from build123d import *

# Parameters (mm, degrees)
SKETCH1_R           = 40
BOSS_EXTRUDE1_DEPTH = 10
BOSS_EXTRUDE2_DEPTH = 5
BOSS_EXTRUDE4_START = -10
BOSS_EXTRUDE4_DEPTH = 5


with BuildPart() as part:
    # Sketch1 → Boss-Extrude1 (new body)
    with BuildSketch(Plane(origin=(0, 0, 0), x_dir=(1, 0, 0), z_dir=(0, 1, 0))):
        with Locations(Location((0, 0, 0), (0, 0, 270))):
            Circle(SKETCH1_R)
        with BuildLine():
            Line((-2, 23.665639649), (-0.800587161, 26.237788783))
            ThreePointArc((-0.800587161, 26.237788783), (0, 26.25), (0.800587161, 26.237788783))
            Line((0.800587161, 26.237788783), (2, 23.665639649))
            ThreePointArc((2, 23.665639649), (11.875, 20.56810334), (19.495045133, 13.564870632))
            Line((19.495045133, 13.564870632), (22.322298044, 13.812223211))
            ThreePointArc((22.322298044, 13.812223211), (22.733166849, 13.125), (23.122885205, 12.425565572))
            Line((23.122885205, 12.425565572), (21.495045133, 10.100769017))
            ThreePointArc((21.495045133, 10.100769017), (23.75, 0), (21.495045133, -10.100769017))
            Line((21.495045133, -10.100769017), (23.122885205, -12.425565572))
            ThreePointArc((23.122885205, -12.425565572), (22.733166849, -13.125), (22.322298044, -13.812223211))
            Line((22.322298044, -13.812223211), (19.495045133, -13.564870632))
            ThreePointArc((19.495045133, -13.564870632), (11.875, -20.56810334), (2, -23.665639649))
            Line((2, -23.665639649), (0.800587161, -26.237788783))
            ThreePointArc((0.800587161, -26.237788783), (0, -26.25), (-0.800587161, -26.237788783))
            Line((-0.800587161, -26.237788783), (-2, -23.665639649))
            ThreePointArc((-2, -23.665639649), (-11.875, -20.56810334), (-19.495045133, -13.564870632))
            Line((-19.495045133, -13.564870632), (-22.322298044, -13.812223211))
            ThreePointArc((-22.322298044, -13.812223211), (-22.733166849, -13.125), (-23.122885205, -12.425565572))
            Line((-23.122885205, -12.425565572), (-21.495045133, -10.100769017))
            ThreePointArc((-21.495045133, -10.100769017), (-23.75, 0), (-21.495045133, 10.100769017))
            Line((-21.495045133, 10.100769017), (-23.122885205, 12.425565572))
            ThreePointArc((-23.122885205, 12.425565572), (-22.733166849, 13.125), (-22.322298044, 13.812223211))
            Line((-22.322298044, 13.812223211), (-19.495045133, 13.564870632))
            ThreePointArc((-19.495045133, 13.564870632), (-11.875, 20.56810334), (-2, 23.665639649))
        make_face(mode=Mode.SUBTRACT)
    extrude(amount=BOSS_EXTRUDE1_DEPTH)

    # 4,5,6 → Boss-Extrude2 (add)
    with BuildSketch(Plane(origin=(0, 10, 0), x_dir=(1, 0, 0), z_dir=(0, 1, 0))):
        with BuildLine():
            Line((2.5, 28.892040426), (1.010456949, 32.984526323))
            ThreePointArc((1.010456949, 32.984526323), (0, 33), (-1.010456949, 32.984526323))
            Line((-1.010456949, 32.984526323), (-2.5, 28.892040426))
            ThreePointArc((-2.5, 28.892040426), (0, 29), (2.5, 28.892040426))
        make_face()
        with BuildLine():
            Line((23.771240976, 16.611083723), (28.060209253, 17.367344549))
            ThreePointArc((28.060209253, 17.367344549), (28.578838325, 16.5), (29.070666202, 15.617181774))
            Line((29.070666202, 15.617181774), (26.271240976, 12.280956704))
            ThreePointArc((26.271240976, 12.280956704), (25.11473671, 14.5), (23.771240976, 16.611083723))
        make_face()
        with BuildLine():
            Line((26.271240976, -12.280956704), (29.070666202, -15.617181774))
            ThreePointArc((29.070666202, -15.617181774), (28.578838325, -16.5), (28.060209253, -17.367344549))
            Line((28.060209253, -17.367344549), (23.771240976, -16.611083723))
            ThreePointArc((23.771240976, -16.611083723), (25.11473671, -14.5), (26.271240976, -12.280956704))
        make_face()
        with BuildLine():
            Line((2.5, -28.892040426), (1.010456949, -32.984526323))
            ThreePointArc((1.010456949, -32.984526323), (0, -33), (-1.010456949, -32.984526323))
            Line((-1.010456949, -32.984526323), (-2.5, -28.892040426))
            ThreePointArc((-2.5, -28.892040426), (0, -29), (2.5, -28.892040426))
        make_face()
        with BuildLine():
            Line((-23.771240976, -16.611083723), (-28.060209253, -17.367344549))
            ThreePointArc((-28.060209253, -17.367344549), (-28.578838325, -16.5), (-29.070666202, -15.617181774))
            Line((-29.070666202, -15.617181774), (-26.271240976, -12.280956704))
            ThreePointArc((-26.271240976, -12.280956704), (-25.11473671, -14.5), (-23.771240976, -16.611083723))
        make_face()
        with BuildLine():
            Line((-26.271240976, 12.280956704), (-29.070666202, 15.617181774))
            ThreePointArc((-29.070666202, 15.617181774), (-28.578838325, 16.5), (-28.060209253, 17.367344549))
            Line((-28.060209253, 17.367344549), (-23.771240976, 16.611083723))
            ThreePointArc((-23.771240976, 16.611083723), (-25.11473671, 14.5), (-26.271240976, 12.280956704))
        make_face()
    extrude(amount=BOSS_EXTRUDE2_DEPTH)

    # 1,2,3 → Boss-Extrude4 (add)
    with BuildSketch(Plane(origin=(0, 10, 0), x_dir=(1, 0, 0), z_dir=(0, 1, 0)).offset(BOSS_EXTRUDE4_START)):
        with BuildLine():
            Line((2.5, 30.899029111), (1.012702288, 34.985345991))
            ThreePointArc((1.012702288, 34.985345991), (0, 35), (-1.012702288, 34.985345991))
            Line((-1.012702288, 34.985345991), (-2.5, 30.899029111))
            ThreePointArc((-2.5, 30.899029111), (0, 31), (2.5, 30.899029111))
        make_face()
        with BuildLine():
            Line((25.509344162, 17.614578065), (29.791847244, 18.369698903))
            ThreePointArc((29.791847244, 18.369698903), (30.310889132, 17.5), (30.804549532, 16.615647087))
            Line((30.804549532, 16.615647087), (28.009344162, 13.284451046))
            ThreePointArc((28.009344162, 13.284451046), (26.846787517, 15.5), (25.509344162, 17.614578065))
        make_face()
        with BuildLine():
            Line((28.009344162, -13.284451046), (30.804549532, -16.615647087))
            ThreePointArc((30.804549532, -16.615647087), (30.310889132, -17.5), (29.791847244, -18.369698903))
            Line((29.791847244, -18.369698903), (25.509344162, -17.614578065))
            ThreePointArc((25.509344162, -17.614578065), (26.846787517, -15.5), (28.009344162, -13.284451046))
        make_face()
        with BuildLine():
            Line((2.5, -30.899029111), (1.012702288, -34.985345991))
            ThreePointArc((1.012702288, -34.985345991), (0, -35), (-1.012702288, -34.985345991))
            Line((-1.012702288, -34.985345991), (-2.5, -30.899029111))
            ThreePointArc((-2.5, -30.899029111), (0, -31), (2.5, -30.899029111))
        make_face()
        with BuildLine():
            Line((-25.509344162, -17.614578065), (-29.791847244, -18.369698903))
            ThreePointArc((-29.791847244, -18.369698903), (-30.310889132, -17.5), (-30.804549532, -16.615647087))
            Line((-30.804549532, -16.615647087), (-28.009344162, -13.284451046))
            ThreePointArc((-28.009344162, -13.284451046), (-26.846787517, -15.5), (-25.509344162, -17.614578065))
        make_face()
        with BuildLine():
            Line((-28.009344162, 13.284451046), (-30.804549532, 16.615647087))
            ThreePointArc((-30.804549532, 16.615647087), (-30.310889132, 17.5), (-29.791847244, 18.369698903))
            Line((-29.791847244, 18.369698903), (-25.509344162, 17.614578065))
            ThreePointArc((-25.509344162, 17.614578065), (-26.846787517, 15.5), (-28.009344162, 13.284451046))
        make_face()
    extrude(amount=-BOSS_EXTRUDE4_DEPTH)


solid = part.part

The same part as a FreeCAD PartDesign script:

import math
import FreeCAD as App
import Part
import Sketcher

V = App.Vector
Q = App.Units.Quantity

doc = App.newDocument("Part")
body = doc.addObject("PartDesign::Body", "Body")

# Sketch on XZ plane
sketch1 = body.newObject("Sketcher::SketchObject", "Sketch")
sketch1.AttachmentSupport = (doc.getObject("XZ_Plane"), [""])
sketch1.MapMode = "FlatFace"
sketch1.addGeometry([
    Part.Circle(V(0, 0, 0), V(0, 0, 1), 40),  # 0
    Part.ArcOfCircle(Part.Circle(V(0, 0, 0), V(0, 0, 1), 23.7), math.radians(-145), math.radians(-95)),  # 1
    Part.LineSegment(V(-2, -23.7, 0), V(-0.8, -26.2, 0)),  # 2
    Part.ArcOfCircle(Part.Circle(V(0, 0, 0), V(0, 0, 1), 26.3), math.radians(-91.75), math.radians(-88.25)),  # 3
    Part.LineSegment(V(0.8, -26.2, 0), V(2, -23.7, 0)),  # 4
    Part.ArcOfCircle(Part.Circle(V(0, 0, 0), V(0, 0, 1), 23.7), math.radians(-85), math.radians(-35)),  # 5
    Part.LineSegment(V(19.5, -13.6, 0), V(22.3, -13.8, 0)),  # 6
    Part.ArcOfCircle(Part.Circle(V(0, 0, 0), V(0, 0, 1), 26.3), math.radians(-31.75), math.radians(-28.25)),  # 7
    Part.LineSegment(V(23.1, -12.4, 0), V(21.5, -10.1, 0)),  # 8
    Part.ArcOfCircle(Part.Circle(V(0, 0, 0), V(0, 0, 1), 23.8), math.radians(-25), math.radians(25)),  # 9
    Part.LineSegment(V(21.5, 10.1, 0), V(23.1, 12.4, 0)),  # 10
    Part.ArcOfCircle(Part.Circle(V(0, 0, 0), V(0, 0, 1), 26.3), math.radians(28.25), math.radians(31.75)),  # 11
    Part.LineSegment(V(22.3, 13.8, 0), V(19.5, 13.6, 0)),  # 12
    Part.ArcOfCircle(Part.Circle(V(0, 0, 0), V(0, 0, 1), 23.7), math.radians(35), math.radians(85)),  # 13
    Part.LineSegment(V(2, 23.7, 0), V(0.8, 26.2, 0)),  # 14
    Part.ArcOfCircle(Part.Circle(V(0, 0, 0), V(0, 0, 1), 26.3), math.radians(88.25), math.radians(91.75)),  # 15
    Part.LineSegment(V(-0.8, 26.2, 0), V(-2, 23.7, 0)),  # 16
    Part.ArcOfCircle(Part.Circle(V(0, 0, 0), V(0, 0, 1), 23.7), math.radians(95), math.radians(145)),  # 17
    Part.LineSegment(V(-19.5, 13.6, 0), V(-22.3, 13.8, 0)),  # 18
    Part.ArcOfCircle(Part.Circle(V(0, 0, 0), V(0, 0, 1), 26.3), math.radians(148.25), math.radians(151.75)),  # 19
    Part.LineSegment(V(-23.1, 12.4, 0), V(-21.5, 10.1, 0)),  # 20
    Part.ArcOfCircle(Part.Circle(V(0, 0, 0), V(0, 0, 1), 23.8), math.radians(155), math.radians(205)),  # 21
    Part.LineSegment(V(-21.5, -10.1, 0), V(-23.1, -12.4, 0)),  # 22
    Part.ArcOfCircle(Part.Circle(V(0, 0, 0), V(0, 0, 1), 26.3), math.radians(-151.75), math.radians(-148.25)),  # 23
    Part.LineSegment(V(-22.3, -13.8, 0), V(-19.5, -13.6, 0)),  # 24
], False)
sketch1.addConstraint([
    Sketcher.Constraint("Coincident", 1, 2, 2, 1),
    Sketcher.Constraint("Coincident", 2, 2, 3, 1),
    Sketcher.Constraint("Coincident", 3, 2, 4, 1),
    Sketcher.Constraint("Coincident", 4, 2, 5, 1),
    Sketcher.Constraint("Coincident", 5, 2, 6, 1),
    Sketcher.Constraint("Coincident", 6, 2, 7, 1),
    Sketcher.Constraint("Coincident", 7, 2, 8, 1),
    Sketcher.Constraint("Coincident", 8, 2, 9, 1),
    Sketcher.Constraint("Coincident", 9, 2, 10, 1),
    Sketcher.Constraint("Coincident", 10, 2, 11, 1),
    Sketcher.Constraint("Coincident", 11, 2, 12, 1),
    Sketcher.Constraint("Coincident", 12, 2, 13, 1),
    Sketcher.Constraint("Coincident", 13, 2, 14, 1),
    Sketcher.Constraint("Coincident", 14, 2, 15, 1),
    Sketcher.Constraint("Coincident", 15, 2, 16, 1),
    Sketcher.Constraint("Coincident", 16, 2, 17, 1),
    Sketcher.Constraint("Coincident", 17, 2, 18, 1),
    Sketcher.Constraint("Coincident", 18, 2, 19, 1),
    Sketcher.Constraint("Coincident", 19, 2, 20, 1),
    Sketcher.Constraint("Coincident", 20, 2, 21, 1),
    Sketcher.Constraint("Coincident", 21, 2, 22, 1),
    Sketcher.Constraint("Coincident", 22, 2, 23, 1),
    Sketcher.Constraint("Coincident", 23, 2, 24, 1),
    Sketcher.Constraint("Coincident", 24, 2, 1, 1),
    Sketcher.Constraint("Coincident", 0, 3, -1, 1),
    Sketcher.Constraint("Coincident", 1, 3, -1, 1),
    Sketcher.Constraint("Coincident", 3, 3, -1, 1),
    Sketcher.Constraint("Coincident", 5, 3, -1, 1),
    Sketcher.Constraint("Coincident", 7, 3, -1, 1),
    Sketcher.Constraint("Coincident", 9, 3, -1, 1),
    Sketcher.Constraint("Coincident", 11, 3, -1, 1),
    Sketcher.Constraint("Coincident", 13, 3, -1, 1),
    Sketcher.Constraint("Coincident", 15, 3, -1, 1),
    Sketcher.Constraint("Coincident", 17, 3, -1, 1),
    Sketcher.Constraint("Coincident", 19, 3, -1, 1),
    Sketcher.Constraint("Coincident", 21, 3, -1, 1),
    Sketcher.Constraint("Coincident", 23, 3, -1, 1),
    Sketcher.Constraint("Equal", 1, 5),
    Sketcher.Constraint("Equal", 3, 7),
    Sketcher.Constraint("Equal", 5, 9),
    Sketcher.Constraint("Equal", 7, 11),
    Sketcher.Constraint("Equal", 9, 13),
    Sketcher.Constraint("Equal", 11, 15),
    Sketcher.Constraint("Equal", 13, 17),
    Sketcher.Constraint("Equal", 15, 19),
    Sketcher.Constraint("Equal", 17, 21),
    Sketcher.Constraint("Equal", 19, 23),
    Sketcher.Constraint("Parallel", 2, 14),
    Sketcher.Constraint("Parallel", 4, 16),
    Sketcher.Constraint("Parallel", 6, 18),
    Sketcher.Constraint("Parallel", 8, 20),
    Sketcher.Constraint("Parallel", 10, 22),
    Sketcher.Constraint("Parallel", 12, 24),
    Sketcher.Constraint("Horizontal", 2, 2, 3, 2),
    Sketcher.Constraint("Horizontal", 1, 2, 4, 2),
    Sketcher.Constraint("Horizontal", 14, 2, 15, 2),
    Sketcher.Constraint("Horizontal", 12, 2, 17, 2),
    Sketcher.Constraint("Horizontal", 11, 2, 18, 2),
    Sketcher.Constraint("Horizontal", 10, 2, 19, 2),
    Sketcher.Constraint("Horizontal", 9, 2, 20, 2),
    Sketcher.Constraint("Horizontal", 8, 2, 21, 2),
    Sketcher.Constraint("Horizontal", 6, 2, 23, 2),
    Sketcher.Constraint("Vertical", 8, 2, 9, 2),
    Sketcher.Constraint("Vertical", 6, 2, 11, 2),
    Sketcher.Constraint("Vertical", 4, 2, 13, 2),
    Sketcher.Constraint("Equal", 4, 6),
    Sketcher.Constraint("Equal", 6, 8),
    Sketcher.Constraint("Diameter", 0, 80.0),
    Sketcher.Constraint("Angle", 2, Q("-65 deg")),
    Sketcher.Constraint("Angle", 6, Q("-5 deg")),
    Sketcher.Constraint("Angle", 8, Q("125 deg")),
    Sketcher.Constraint("Radius", 1, 23.75),
    Sketcher.Constraint("Radius", 3, 26.250001),
    Sketcher.Constraint("DistanceX", 1, 2, -1, 1, 2.0),
])
pad1 = body.newObject("PartDesign::Pad", "Pad")
pad1.Profile = sketch1
pad1.Length = 10
pad1.Reversed = True

# Sketch on XZ plane
sketch2 = body.newObject("Sketcher::SketchObject", "Sketch001")
sketch2.AttachmentSupport = (doc.getObject("XZ_Plane"), [""])
sketch2.MapMode = "FlatFace"
sketch2.AttachmentOffset = App.Placement(V(0, 0, -10), App.Rotation())
sketch2.addGeometry([
    Part.LineSegment(V(2.5, -28.9, 0), V(1, -33, 0)),  # 0
    Part.ArcOfCircle(Part.Circle(V(0, 0, 0), V(0, 0, 1), 33), math.radians(-91.75), math.radians(-88.25)),  # 1
    Part.LineSegment(V(-1, -33, 0), V(-2.5, -28.9, 0)),  # 2
    Part.ArcOfCircle(Part.Circle(V(0, 0, 0), V(0, 0, 1), 29), math.radians(-94.95), math.radians(-85.05)),  # 3
    Part.LineSegment(V(28.1, -17.4, 0), V(23.8, -16.6, 0)),  # 4
    Part.ArcOfCircle(Part.Circle(V(0, 0, 0), V(0, 0, 1), 29), math.radians(-34.95), math.radians(-25.05)),  # 5
    Part.LineSegment(V(26.3, -12.3, 0), V(29.1, -15.6, 0)),  # 6
    Part.ArcOfCircle(Part.Circle(V(0, 0, 0), V(0, 0, 1), 33), math.radians(-31.75), math.radians(-28.25)),  # 7
    Part.LineSegment(V(29.1, 15.6, 0), V(26.3, 12.3, 0)),  # 8
    Part.ArcOfCircle(Part.Circle(V(0, 0, 0), V(0, 0, 1), 29), math.radians(25.05), math.radians(34.95)),  # 9
    Part.LineSegment(V(23.8, 16.6, 0), V(28.1, 17.4, 0)),  # 10
    Part.ArcOfCircle(Part.Circle(V(0, 0, 0), V(0, 0, 1), 33), math.radians(28.25), math.radians(31.75)),  # 11
    Part.LineSegment(V(1, 33, 0), V(2.5, 28.9, 0)),  # 12
    Part.ArcOfCircle(Part.Circle(V(0, 0, 0), V(0, 0, 1), 29), math.radians(85.05), math.radians(94.95)),  # 13
    Part.LineSegment(V(-2.5, 28.9, 0), V(-1, 33, 0)),  # 14
    Part.ArcOfCircle(Part.Circle(V(0, 0, 0), V(0, 0, 1), 33), math.radians(88.25), math.radians(91.75)),  # 15
    Part.LineSegment(V(-28.1, 17.4, 0), V(-23.8, 16.6, 0)),  # 16
    Part.ArcOfCircle(Part.Circle(V(0, 0, 0), V(0, 0, 1), 29), math.radians(145.05), math.radians(154.95)),  # 17
    Part.LineSegment(V(-26.3, 12.3, 0), V(-29.1, 15.6, 0)),  # 18
    Part.ArcOfCircle(Part.Circle(V(0, 0, 0), V(0, 0, 1), 33), math.radians(148.25), math.radians(151.75)),  # 19
    Part.LineSegment(V(-29.1, -15.6, 0), V(-26.3, -12.3, 0)),  # 20
    Part.ArcOfCircle(Part.Circle(V(0, 0, 0), V(0, 0, 1), 29), math.radians(-154.95), math.radians(-145.05)),  # 21
    Part.LineSegment(V(-23.8, -16.6, 0), V(-28.1, -17.4, 0)),  # 22
    Part.ArcOfCircle(Part.Circle(V(0, 0, 0), V(0, 0, 1), 33), math.radians(-151.75), math.radians(-148.25)),  # 23
], False)
sketch2.addConstraint([
    Sketcher.Constraint("Coincident", 0, 2, 1, 2),
    Sketcher.Constraint("Coincident", 1, 1, 2, 1),
    Sketcher.Constraint("Coincident", 2, 2, 3, 1),
    Sketcher.Constraint("Coincident", 3, 2, 0, 1),
    Sketcher.Constraint("Coincident", 4, 2, 5, 1),
    Sketcher.Constraint("Coincident", 5, 2, 6, 1),
    Sketcher.Constraint("Coincident", 6, 2, 7, 2),
    Sketcher.Constraint("Coincident", 7, 1, 4, 1),
    Sketcher.Constraint("Coincident", 8, 2, 9, 1),
    Sketcher.Constraint("Coincident", 9, 2, 10, 1),
    Sketcher.Constraint("Coincident", 10, 2, 11, 2),
    Sketcher.Constraint("Coincident", 11, 1, 8, 1),
    Sketcher.Constraint("Coincident", 12, 2, 13, 1),
    Sketcher.Constraint("Coincident", 13, 2, 14, 1),
    Sketcher.Constraint("Coincident", 14, 2, 15, 2),
    Sketcher.Constraint("Coincident", 15, 1, 12, 1),
    Sketcher.Constraint("Coincident", 16, 2, 17, 1),
    Sketcher.Constraint("Coincident", 17, 2, 18, 1),
    Sketcher.Constraint("Coincident", 18, 2, 19, 2),
    Sketcher.Constraint("Coincident", 19, 1, 16, 1),
    Sketcher.Constraint("Coincident", 20, 2, 21, 1),
    Sketcher.Constraint("Coincident", 21, 2, 22, 1),
    Sketcher.Constraint("Coincident", 22, 2, 23, 2),
    Sketcher.Constraint("Coincident", 23, 1, 20, 1),
    Sketcher.Constraint("Coincident", 1, 3, -1, 1),
    Sketcher.Constraint("Coincident", 3, 3, -1, 1),
    Sketcher.Constraint("Coincident", 5, 3, -1, 1),
    Sketcher.Constraint("Coincident", 7, 3, -1, 1),
    Sketcher.Constraint("Coincident", 9, 3, -1, 1),
    Sketcher.Constraint("Coincident", 11, 3, -1, 1),
    Sketcher.Constraint("Coincident", 13, 3, -1, 1),
    Sketcher.Constraint("Coincident", 15, 3, -1, 1),
    Sketcher.Constraint("Coincident", 17, 3, -1, 1),
    Sketcher.Constraint("Coincident", 19, 3, -1, 1),
    Sketcher.Constraint("Coincident", 21, 3, -1, 1),
    Sketcher.Constraint("Coincident", 23, 3, -1, 1),
    Sketcher.Constraint("Equal", 3, 5),
    Sketcher.Constraint("Equal", 1, 7),
    Sketcher.Constraint("Equal", 5, 9),
    Sketcher.Constraint("Equal", 7, 11),
    Sketcher.Constraint("Equal", 9, 13),
    Sketcher.Constraint("Equal", 11, 15),
    Sketcher.Constraint("Equal", 13, 17),
    Sketcher.Constraint("Equal", 15, 19),
    Sketcher.Constraint("Equal", 17, 21),
    Sketcher.Constraint("Equal", 19, 23),
    Sketcher.Constraint("Parallel", 2, 12),
    Sketcher.Constraint("Parallel", 0, 14),
    Sketcher.Constraint("Parallel", 4, 16),
    Sketcher.Constraint("Parallel", 6, 18),
    Sketcher.Constraint("Parallel", 8, 20),
    Sketcher.Constraint("Parallel", 10, 22),
    Sketcher.Constraint("Horizontal", 0, 2, 1, 1),
    Sketcher.Constraint("Horizontal", 2, 2, 3, 2),
    Sketcher.Constraint("Horizontal", 12, 2, 13, 2),
    Sketcher.Constraint("Horizontal", 9, 2, 16, 2),
    Sketcher.Constraint("Horizontal", 8, 2, 17, 2),
    Sketcher.Constraint("Horizontal", 11, 1, 18, 2),
    Sketcher.Constraint("Horizontal", 10, 2, 19, 1),
    Sketcher.Constraint("Horizontal", 5, 2, 20, 2),
    Sketcher.Constraint("Horizontal", 4, 2, 21, 2),
    Sketcher.Constraint("Vertical", 5, 2, 8, 2),
    Sketcher.Constraint("Vertical", 4, 2, 9, 2),
    Sketcher.Constraint("Vertical", 3, 2, 12, 2),
    Sketcher.Constraint("Equal", 2, 4),
    Sketcher.Constraint("Equal", 4, 6),
    Sketcher.Constraint("Radius", 1, 33.0),
    Sketcher.Constraint("Radius", 3, 29.0),
    Sketcher.Constraint("Angle", 0, Q("-110 deg")),
    Sketcher.Constraint("Angle", 4, Q("170 deg")),
    Sketcher.Constraint("Angle", 6, Q("-50 deg")),
    Sketcher.Constraint("DistanceX", 2, 2, 3, 2, 5.0),
])
pad2 = body.newObject("PartDesign::Pad", "Pad001")
pad2.Profile = sketch2
pad2.Length = 5
pad2.Reversed = True

# Sketch on XZ plane
sketch3 = body.newObject("Sketcher::SketchObject", "Sketch002")
sketch3.AttachmentSupport = (doc.getObject("XZ_Plane"), [""])
sketch3.MapMode = "FlatFace"
sketch3.addGeometry([
    Part.LineSegment(V(2.5, -30.9, 0), V(1, -35, 0)),  # 0
    Part.ArcOfCircle(Part.Circle(V(0, 0, 0), V(0, 0, 1), 35), math.radians(-91.66), math.radians(-88.34)),  # 1
    Part.LineSegment(V(-1, -35, 0), V(-2.5, -30.9, 0)),  # 2
    Part.ArcOfCircle(Part.Circle(V(0, 0, 0), V(0, 0, 1), 31), math.radians(-94.63), math.radians(-85.37)),  # 3
    Part.LineSegment(V(29.8, -18.4, 0), V(25.5, -17.6, 0)),  # 4
    Part.ArcOfCircle(Part.Circle(V(0, 0, 0), V(0, 0, 1), 31), math.radians(-34.63), math.radians(-25.37)),  # 5
    Part.LineSegment(V(28, -13.3, 0), V(30.8, -16.6, 0)),  # 6
    Part.ArcOfCircle(Part.Circle(V(0, 0, 0), V(0, 0, 1), 35), math.radians(-31.66), math.radians(-28.34)),  # 7
    Part.LineSegment(V(30.8, 16.6, 0), V(28, 13.3, 0)),  # 8
    Part.ArcOfCircle(Part.Circle(V(0, 0, 0), V(0, 0, 1), 31), math.radians(25.37), math.radians(34.63)),  # 9
    Part.LineSegment(V(25.5, 17.6, 0), V(29.8, 18.4, 0)),  # 10
    Part.ArcOfCircle(Part.Circle(V(0, 0, 0), V(0, 0, 1), 35), math.radians(28.34), math.radians(31.66)),  # 11
    Part.LineSegment(V(1, 35, 0), V(2.5, 30.9, 0)),  # 12
    Part.ArcOfCircle(Part.Circle(V(0, 0, 0), V(0, 0, 1), 31), math.radians(85.37), math.radians(94.63)),  # 13
    Part.LineSegment(V(-2.5, 30.9, 0), V(-1, 35, 0)),  # 14
    Part.ArcOfCircle(Part.Circle(V(0, 0, 0), V(0, 0, 1), 35), math.radians(88.34), math.radians(91.66)),  # 15
    Part.LineSegment(V(-29.8, 18.4, 0), V(-25.5, 17.6, 0)),  # 16
    Part.ArcOfCircle(Part.Circle(V(0, 0, 0), V(0, 0, 1), 31), math.radians(145.37), math.radians(154.63)),  # 17
    Part.LineSegment(V(-28, 13.3, 0), V(-30.8, 16.6, 0)),  # 18
    Part.ArcOfCircle(Part.Circle(V(0, 0, 0), V(0, 0, 1), 35), math.radians(148.34), math.radians(151.66)),  # 19
    Part.LineSegment(V(-30.8, -16.6, 0), V(-28, -13.3, 0)),  # 20
    Part.ArcOfCircle(Part.Circle(V(0, 0, 0), V(0, 0, 1), 31), math.radians(-154.63), math.radians(-145.37)),  # 21
    Part.LineSegment(V(-25.5, -17.6, 0), V(-29.8, -18.4, 0)),  # 22
    Part.ArcOfCircle(Part.Circle(V(0, 0, 0), V(0, 0, 1), 35), math.radians(-151.66), math.radians(-148.34)),  # 23
], False)
sketch3.addConstraint([
    Sketcher.Constraint("Coincident", 0, 2, 1, 2),
    Sketcher.Constraint("Coincident", 1, 1, 2, 1),
    Sketcher.Constraint("Coincident", 2, 2, 3, 1),
    Sketcher.Constraint("Coincident", 3, 2, 0, 1),
    Sketcher.Constraint("Coincident", 4, 2, 5, 1),
    Sketcher.Constraint("Coincident", 5, 2, 6, 1),
    Sketcher.Constraint("Coincident", 6, 2, 7, 2),
    Sketcher.Constraint("Coincident", 7, 1, 4, 1),
    Sketcher.Constraint("Coincident", 8, 2, 9, 1),
    Sketcher.Constraint("Coincident", 9, 2, 10, 1),
    Sketcher.Constraint("Coincident", 10, 2, 11, 2),
    Sketcher.Constraint("Coincident", 11, 1, 8, 1),
    Sketcher.Constraint("Coincident", 12, 2, 13, 1),
    Sketcher.Constraint("Coincident", 13, 2, 14, 1),
    Sketcher.Constraint("Coincident", 14, 2, 15, 2),
    Sketcher.Constraint("Coincident", 15, 1, 12, 1),
    Sketcher.Constraint("Coincident", 16, 2, 17, 1),
    Sketcher.Constraint("Coincident", 17, 2, 18, 1),
    Sketcher.Constraint("Coincident", 18, 2, 19, 2),
    Sketcher.Constraint("Coincident", 19, 1, 16, 1),
    Sketcher.Constraint("Coincident", 20, 2, 21, 1),
    Sketcher.Constraint("Coincident", 21, 2, 22, 1),
    Sketcher.Constraint("Coincident", 22, 2, 23, 2),
    Sketcher.Constraint("Coincident", 23, 1, 20, 1),
    Sketcher.Constraint("Coincident", 1, 3, -1, 1),
    Sketcher.Constraint("Coincident", 3, 3, -1, 1),
    Sketcher.Constraint("Coincident", 5, 3, -1, 1),
    Sketcher.Constraint("Coincident", 7, 3, -1, 1),
    Sketcher.Constraint("Coincident", 9, 3, -1, 1),
    Sketcher.Constraint("Coincident", 11, 3, -1, 1),
    Sketcher.Constraint("Coincident", 13, 3, -1, 1),
    Sketcher.Constraint("Coincident", 15, 3, -1, 1),
    Sketcher.Constraint("Coincident", 17, 3, -1, 1),
    Sketcher.Constraint("Coincident", 19, 3, -1, 1),
    Sketcher.Constraint("Coincident", 21, 3, -1, 1),
    Sketcher.Constraint("Coincident", 23, 3, -1, 1),
    Sketcher.Constraint("Equal", 3, 5),
    Sketcher.Constraint("Equal", 1, 7),
    Sketcher.Constraint("Equal", 5, 9),
    Sketcher.Constraint("Equal", 7, 11),
    Sketcher.Constraint("Equal", 9, 13),
    Sketcher.Constraint("Equal", 11, 15),
    Sketcher.Constraint("Equal", 13, 17),
    Sketcher.Constraint("Equal", 15, 19),
    Sketcher.Constraint("Equal", 17, 21),
    Sketcher.Constraint("Equal", 19, 23),
    Sketcher.Constraint("Parallel", 2, 12),
    Sketcher.Constraint("Parallel", 0, 14),
    Sketcher.Constraint("Parallel", 4, 16),
    Sketcher.Constraint("Parallel", 6, 18),
    Sketcher.Constraint("Parallel", 8, 20),
    Sketcher.Constraint("Parallel", 10, 22),
    Sketcher.Constraint("Horizontal", 0, 2, 1, 1),
    Sketcher.Constraint("Horizontal", 2, 2, 3, 2),
    Sketcher.Constraint("Horizontal", 12, 2, 13, 2),
    Sketcher.Constraint("Horizontal", 9, 2, 16, 2),
    Sketcher.Constraint("Horizontal", 8, 2, 17, 2),
    Sketcher.Constraint("Horizontal", 11, 1, 18, 2),
    Sketcher.Constraint("Horizontal", 10, 2, 19, 1),
    Sketcher.Constraint("Horizontal", 5, 2, 20, 2),
    Sketcher.Constraint("Horizontal", 4, 2, 21, 2),
    Sketcher.Constraint("Vertical", 5, 2, 8, 2),
    Sketcher.Constraint("Vertical", 4, 2, 9, 2),
    Sketcher.Constraint("Vertical", 3, 2, 12, 2),
    Sketcher.Constraint("Equal", 2, 4),
    Sketcher.Constraint("Equal", 4, 6),
    Sketcher.Constraint("Radius", 1, 35.000001),
    Sketcher.Constraint("Radius", 3, 31.0),
    Sketcher.Constraint("Angle", 0, Q("-110 deg")),
    Sketcher.Constraint("Angle", 4, Q("170 deg")),
    Sketcher.Constraint("Angle", 6, Q("-50 deg")),
    Sketcher.Constraint("DistanceX", 2, 2, 3, 2, 5.0),
])
pad3 = body.newObject("PartDesign::Pad", "Pad002")
pad3.Profile = sketch3
pad3.Length = 5

doc.recompute()
